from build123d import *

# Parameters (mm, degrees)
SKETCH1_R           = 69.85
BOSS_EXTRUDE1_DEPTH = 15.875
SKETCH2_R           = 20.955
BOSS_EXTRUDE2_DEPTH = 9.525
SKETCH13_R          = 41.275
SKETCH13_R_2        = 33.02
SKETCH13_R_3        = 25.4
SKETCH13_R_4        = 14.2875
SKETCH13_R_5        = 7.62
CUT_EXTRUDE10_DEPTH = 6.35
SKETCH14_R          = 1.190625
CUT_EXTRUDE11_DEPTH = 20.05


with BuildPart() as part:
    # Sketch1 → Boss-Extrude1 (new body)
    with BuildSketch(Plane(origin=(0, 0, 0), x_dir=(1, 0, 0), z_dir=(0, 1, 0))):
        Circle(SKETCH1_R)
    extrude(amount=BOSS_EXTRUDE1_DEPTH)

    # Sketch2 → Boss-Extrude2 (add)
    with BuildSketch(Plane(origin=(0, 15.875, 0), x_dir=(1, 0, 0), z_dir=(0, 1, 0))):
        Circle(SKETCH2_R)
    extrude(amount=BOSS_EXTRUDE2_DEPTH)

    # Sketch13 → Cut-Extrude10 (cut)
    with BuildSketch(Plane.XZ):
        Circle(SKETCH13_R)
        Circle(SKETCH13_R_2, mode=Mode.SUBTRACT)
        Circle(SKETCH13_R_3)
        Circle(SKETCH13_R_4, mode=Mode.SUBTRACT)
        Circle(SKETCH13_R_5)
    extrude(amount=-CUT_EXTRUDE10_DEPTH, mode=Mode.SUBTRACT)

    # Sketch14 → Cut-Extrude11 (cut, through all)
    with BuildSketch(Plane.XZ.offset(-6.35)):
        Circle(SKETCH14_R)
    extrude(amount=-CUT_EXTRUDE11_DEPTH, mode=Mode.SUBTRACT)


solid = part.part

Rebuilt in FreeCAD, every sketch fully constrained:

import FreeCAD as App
import Part
import Sketcher
Q = App.Units.Quantity

doc = App.newDocument("Part")
body = doc.addObject("PartDesign::Body", "Body")

sketch1 = body.newObject("Sketcher::SketchObject", "Sketch")
sketch1.AttachmentSupport = (doc.getObject("XZ_Plane"), [""])
sketch1.MapMode = "FlatFace"
sketch1.addGeometry(Part.Circle(App.Vector(0, 0, 0), App.Vector(0, 0, 1), 70), False)
sketch1.addConstraint([
    Sketcher.Constraint("Coincident", 0, 3, -1, 1),
    Sketcher.Constraint("Diameter", 0, Q("5.5 in")),
])
pad1 = body.newObject("PartDesign::Pad", "Pad")
pad1.Profile = sketch1
pad1.Length = Q("0.625 in")
pad1.Reversed = True

sketch2 = body.newObject("Sketcher::SketchObject", "Sketch001")
sketch2.AttachmentSupport = (doc.getObject("XZ_Plane"), [""])
sketch2.MapMode = "FlatFace"
sketch2.AttachmentOffset = App.Placement(App.Vector(0, 0, -0.625 * 25.4), App.Rotation())
sketch2.addGeometry(Part.Circle(App.Vector(0, 0, 0), App.Vector(0, 0, 1), 21), False)
sketch2.addConstraint([
    Sketcher.Constraint("Coincident", 0, 3, -1, 1),
    Sketcher.Constraint("Diameter", 0, Q("1.65 in")),
])
pad2 = body.newObject("PartDesign::Pad", "Pad001")
pad2.Profile = sketch2
pad2.Length = Q("0.375 in")
pad2.Reversed = True

sketch3 = body.newObject("Sketcher::SketchObject", "Sketch002")
sketch3.AttachmentSupport = (doc.getObject("XZ_Plane"), [""])
sketch3.MapMode = "FlatFace"
sketch3.addGeometry([
    Part.Circle(App.Vector(0, 0, 0), App.Vector(0, 0, 1), 41),
    Part.Circle(App.Vector(0, 0, 0), App.Vector(0, 0, 1), 33),
    Part.Circle(App.Vector(0, 0, 0), App.Vector(0, 0, 1), 25),
    Part.Circle(App.Vector(0, 0, 0), App.Vector(0, 0, 1), 14),
    Part.Circle(App.Vector(0, 0, 0), App.Vector(0, 0, 1), 8),
], False)
sketch3.addConstraint([
    Sketcher.Constraint("Coincident", 0, 3, -1, 1),
    Sketcher.Constraint("Coincident", 1, 3, -1, 1),
    Sketcher.Constraint("Coincident", 2, 3, -1, 1),
    Sketcher.Constraint("Coincident", 3, 3, -1, 1),
    Sketcher.Constraint("Coincident", 4, 3, -1, 1),
    Sketcher.Constraint("Diameter", 2, Q("2 in")),
    Sketcher.Constraint("Diameter", 1, Q("2.6 in")),
    Sketcher.Constraint("Diameter", 4, Q("0.6 in")),
    Sketcher.Constraint("Diameter", 0, Q("3.25 in")),
    Sketcher.Constraint("Diameter", 3, Q("1.125 in")),
])
pocket1 = body.newObject("PartDesign::Pocket", "Pocket")
pocket1.Profile = sketch3
pocket1.Length = Q("0.25 in")

sketch4 = body.newObject("Sketcher::SketchObject", "Sketch003")
sketch4.AttachmentSupport = (doc.getObject("XZ_Plane"), [""])
sketch4.MapMode = "FlatFace"
sketch4.AttachmentOffset = App.Placement(App.Vector(0, 0, -0.25 * 25.4), App.Rotation())
sketch4.addGeometry(Part.Circle(App.Vector(0, 0, 0), App.Vector(0, 0, 1), 1.2), False)
sketch4.addConstraint([
    Sketcher.Constraint("Coincident", 0, 3, -1, 1),
    Sketcher.Constraint("Diameter", 0, Q("0.09375 in")),
])
pocket2 = body.newObject("PartDesign::Pocket", "Pocket001")
pocket2.Profile = sketch4
pocket2.Type = "ThroughAll"

doc.recompute()
